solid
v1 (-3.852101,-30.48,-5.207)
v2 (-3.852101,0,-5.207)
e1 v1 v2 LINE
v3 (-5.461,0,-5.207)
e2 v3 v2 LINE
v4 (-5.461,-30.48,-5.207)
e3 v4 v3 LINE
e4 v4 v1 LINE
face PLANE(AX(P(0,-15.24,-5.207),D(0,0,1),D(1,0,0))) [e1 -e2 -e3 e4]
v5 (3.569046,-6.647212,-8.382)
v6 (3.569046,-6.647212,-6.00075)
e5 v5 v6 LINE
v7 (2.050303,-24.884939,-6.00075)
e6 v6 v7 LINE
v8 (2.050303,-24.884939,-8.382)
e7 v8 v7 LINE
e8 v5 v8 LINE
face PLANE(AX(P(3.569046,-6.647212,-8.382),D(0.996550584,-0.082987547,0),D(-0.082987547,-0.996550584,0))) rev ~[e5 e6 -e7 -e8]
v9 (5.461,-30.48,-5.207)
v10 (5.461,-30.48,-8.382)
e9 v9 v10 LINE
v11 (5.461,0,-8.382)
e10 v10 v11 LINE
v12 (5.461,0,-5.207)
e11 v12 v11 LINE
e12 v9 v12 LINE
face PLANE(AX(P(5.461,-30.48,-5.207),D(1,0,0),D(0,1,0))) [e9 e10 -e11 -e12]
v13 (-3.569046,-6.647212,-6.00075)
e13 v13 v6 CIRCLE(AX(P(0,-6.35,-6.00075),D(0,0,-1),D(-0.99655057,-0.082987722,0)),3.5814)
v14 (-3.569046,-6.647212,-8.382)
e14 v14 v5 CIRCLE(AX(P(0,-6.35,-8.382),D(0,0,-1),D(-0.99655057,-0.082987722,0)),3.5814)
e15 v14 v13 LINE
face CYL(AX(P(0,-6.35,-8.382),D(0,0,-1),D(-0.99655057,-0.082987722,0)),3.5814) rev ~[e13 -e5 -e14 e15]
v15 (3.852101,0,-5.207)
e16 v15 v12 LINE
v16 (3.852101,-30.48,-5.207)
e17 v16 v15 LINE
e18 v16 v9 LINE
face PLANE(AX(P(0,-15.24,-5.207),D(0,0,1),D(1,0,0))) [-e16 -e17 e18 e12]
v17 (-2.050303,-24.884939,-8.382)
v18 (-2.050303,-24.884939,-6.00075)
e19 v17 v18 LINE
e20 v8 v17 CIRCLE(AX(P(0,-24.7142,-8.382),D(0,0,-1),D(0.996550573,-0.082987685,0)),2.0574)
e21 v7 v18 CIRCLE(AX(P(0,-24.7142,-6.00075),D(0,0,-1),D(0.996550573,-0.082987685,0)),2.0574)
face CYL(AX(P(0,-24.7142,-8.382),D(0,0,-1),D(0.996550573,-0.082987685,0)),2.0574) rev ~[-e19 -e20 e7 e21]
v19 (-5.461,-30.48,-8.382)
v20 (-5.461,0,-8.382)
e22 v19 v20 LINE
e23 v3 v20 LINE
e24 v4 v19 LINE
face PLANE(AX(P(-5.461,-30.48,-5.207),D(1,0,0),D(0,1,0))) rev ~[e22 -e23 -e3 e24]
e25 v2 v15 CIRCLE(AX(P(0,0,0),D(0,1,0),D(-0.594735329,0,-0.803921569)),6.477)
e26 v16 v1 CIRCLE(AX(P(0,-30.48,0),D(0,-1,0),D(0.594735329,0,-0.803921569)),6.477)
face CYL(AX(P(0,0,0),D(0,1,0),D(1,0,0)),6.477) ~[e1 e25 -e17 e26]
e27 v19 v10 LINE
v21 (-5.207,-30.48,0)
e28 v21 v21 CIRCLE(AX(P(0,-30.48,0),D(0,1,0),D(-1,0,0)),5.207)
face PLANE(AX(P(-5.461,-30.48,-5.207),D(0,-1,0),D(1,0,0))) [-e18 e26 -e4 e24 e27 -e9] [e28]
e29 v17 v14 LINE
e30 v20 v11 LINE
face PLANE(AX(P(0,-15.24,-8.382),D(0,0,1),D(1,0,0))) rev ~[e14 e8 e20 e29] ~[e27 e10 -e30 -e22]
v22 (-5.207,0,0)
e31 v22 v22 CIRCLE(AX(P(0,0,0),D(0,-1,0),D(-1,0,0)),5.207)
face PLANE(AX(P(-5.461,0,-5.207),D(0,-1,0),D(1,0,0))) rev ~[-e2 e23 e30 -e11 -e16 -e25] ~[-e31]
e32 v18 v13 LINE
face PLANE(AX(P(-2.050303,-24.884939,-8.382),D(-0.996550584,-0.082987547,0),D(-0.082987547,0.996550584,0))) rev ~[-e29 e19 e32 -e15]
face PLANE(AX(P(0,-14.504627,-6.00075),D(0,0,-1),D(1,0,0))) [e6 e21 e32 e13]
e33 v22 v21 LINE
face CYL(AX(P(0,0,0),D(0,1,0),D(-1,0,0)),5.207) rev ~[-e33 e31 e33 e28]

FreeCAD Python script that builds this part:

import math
import FreeCAD as App
import Part
import Sketcher
Q = App.Units.Quantity


def add_polygon(sketch, points):
    """Adds a closed chain of lines whose ends are joined by coincident constraints."""
    first, n = sketch.GeometryCount, len(points)
    for a, b in zip(points, points[1:] + points[:1]):
        sketch.addGeometry(Part.LineSegment(App.Vector(*a, 0), App.Vector(*b, 0)), False)
    for i in range(n):
        sketch.addConstraint(Sketcher.Constraint("Coincident", first + i, 2, first + (i + 1) % n, 1))

doc = App.newDocument("Part")
body = doc.addObject("PartDesign::Body", "Body")

sketch1 = doc.addObject("Sketcher::SketchObject", "Sketch")
body.addObject(sketch1)
sketch1.AttachmentSupport = (doc.XZ_Plane, [""])
sketch1.MapMode = "FlatFace"
sketch1.addGeometry(Part.Circle(App.Vector(0, 0, 0), App.Vector(0, 0, 1), 6), False)
sketch1.addConstraint(Sketcher.Constraint("Coincident", 0, 3, -1, 1))
sketch1.addConstraint(Sketcher.Constraint("Diameter", 0, Q("0.51 in")))
pad1 = doc.addObject("PartDesign::Pad", "Pad")
body.addObject(pad1)
pad1.Profile = sketch1
pad1.Length = Q("1.2 in")

sketch2 = doc.addObject("Sketcher::SketchObject", "Sketch001")
body.addObject(sketch2)
sketch2.AttachmentSupport = (doc.XZ_Plane, [""])
sketch2.MapMode = "FlatFace"
sketch2.addGeometry(Part.Circle(App.Vector(0, 0, 0), App.Vector(0, 0, 1), 5), False)
sketch2.addConstraint(Sketcher.Constraint("Coincident", 0, 3, -1, 1))
sketch2.addConstraint(Sketcher.Constraint("Diameter", 0, Q("0.41 in")))
pocket1 = doc.addObject("PartDesign::Pocket", "Pocket")
body.addObject(pocket1)
pocket1.Profile = sketch2
pocket1.Type = "ThroughAll"
pocket1.Reversed = True

sketch3 = doc.addObject("Sketcher::SketchObject", "Sketch002")
body.addObject(sketch3)
sketch3.AttachmentSupport = (doc.XY_Plane, [""])
sketch3.MapMode = "FlatFace"
sketch3.AttachmentOffset = App.Placement(App.Vector(0, 0, -0.205 * 25.4), App.Rotation())
add_polygon(sketch3, [(-5, 0), (-5, -30), (5, -30), (5, 0)])
sketch3.addConstraint(Sketcher.Constraint("Vertical", 0))
sketch3.addConstraint(Sketcher.Constraint("Horizontal", 1))
sketch3.addConstraint(Sketcher.Constraint("Vertical", 2))
sketch3.addConstraint(Sketcher.Constraint("Horizontal", 3))
sketch3.addConstraint(Sketcher.Constraint("Symmetric", 2, 2, 3, 2, -1, 1))
sketch3.addConstraint(Sketcher.Constraint("DistanceY", 0, 2, 0, 1, Q("1.2 in")))
sketch3.addConstraint(Sketcher.Constraint("DistanceX", 1, 1, 1, 2, Q("0.43 in")))
pad2 = doc.addObject("PartDesign::Pad", "Pad001")
body.addObject(pad2)
pad2.Profile = sketch3
pad2.Length = Q("0.125 in")
pad2.Reversed = True

sketch4 = doc.addObject("Sketcher::SketchObject", "Sketch003")
body.addObject(sketch4)
sketch4.AttachmentSupport = (doc.XY_Plane, [""])
sketch4.MapMode = "FlatFace"
sketch4.AttachmentOffset = App.Placement(App.Vector(0, 0, -0.33 * 25.4), App.Rotation())
sketch4.addGeometry(Part.LineSegment(App.Vector(3.6, -6.6, 0), App.Vector(2.1, -24.9, 0)), False)
sketch4.addGeometry(Part.ArcOfCircle(Part.Circle(App.Vector(0, -24.7, 0), App.Vector(0, 0, 1), 2.1), math.radians(-175), math.radians(-5)), False)
sketch4.addGeometry(Part.LineSegment(App.Vector(-2.1, -24.9, 0), App.Vector(-3.6, -6.6, 0)), False)
sketch4.addGeometry(Part.ArcOfCircle(Part.Circle(App.Vector(0, -6.3, 0), App.Vector(0, 0, 1), 3.6), math.radians(-5), math.radians(185)), False)
sketch4.addConstraint(Sketcher.Constraint("Tangent", 0, 2, 1, 2))
sketch4.addConstraint(Sketcher.Constraint("Tangent", 1, 1, 2, 1))
sketch4.addConstraint(Sketcher.Constraint("Tangent", 2, 2, 3, 2))
sketch4.addConstraint(Sketcher.Constraint("Tangent", 3, 1, 0, 1))
sketch4.addConstraint(Sketcher.Constraint("Symmetric", 0, 2, 1, 1, -2))
sketch4.addConstraint(Sketcher.Constraint("Radius", 1, Q("0.081 in")))
sketch4.addConstraint(Sketcher.Constraint("Radius", 3, Q("0.141 in")))
sketch4.addConstraint(Sketcher.Constraint("DistanceY", 3, 3, -1, 1, Q("0.25 in")))
sketch4.addConstraint(Sketcher.Constraint("DistanceY", 1, 3, -1, 1, Q("0.973 in")))
pocket2 = doc.addObject("PartDesign::Pocket", "Pocket001")
body.addObject(pocket2)
pocket2.Profile = sketch4
pocket2.Length = Q("0.09375 in")
pocket2.Reversed = True

doc.recompute()
